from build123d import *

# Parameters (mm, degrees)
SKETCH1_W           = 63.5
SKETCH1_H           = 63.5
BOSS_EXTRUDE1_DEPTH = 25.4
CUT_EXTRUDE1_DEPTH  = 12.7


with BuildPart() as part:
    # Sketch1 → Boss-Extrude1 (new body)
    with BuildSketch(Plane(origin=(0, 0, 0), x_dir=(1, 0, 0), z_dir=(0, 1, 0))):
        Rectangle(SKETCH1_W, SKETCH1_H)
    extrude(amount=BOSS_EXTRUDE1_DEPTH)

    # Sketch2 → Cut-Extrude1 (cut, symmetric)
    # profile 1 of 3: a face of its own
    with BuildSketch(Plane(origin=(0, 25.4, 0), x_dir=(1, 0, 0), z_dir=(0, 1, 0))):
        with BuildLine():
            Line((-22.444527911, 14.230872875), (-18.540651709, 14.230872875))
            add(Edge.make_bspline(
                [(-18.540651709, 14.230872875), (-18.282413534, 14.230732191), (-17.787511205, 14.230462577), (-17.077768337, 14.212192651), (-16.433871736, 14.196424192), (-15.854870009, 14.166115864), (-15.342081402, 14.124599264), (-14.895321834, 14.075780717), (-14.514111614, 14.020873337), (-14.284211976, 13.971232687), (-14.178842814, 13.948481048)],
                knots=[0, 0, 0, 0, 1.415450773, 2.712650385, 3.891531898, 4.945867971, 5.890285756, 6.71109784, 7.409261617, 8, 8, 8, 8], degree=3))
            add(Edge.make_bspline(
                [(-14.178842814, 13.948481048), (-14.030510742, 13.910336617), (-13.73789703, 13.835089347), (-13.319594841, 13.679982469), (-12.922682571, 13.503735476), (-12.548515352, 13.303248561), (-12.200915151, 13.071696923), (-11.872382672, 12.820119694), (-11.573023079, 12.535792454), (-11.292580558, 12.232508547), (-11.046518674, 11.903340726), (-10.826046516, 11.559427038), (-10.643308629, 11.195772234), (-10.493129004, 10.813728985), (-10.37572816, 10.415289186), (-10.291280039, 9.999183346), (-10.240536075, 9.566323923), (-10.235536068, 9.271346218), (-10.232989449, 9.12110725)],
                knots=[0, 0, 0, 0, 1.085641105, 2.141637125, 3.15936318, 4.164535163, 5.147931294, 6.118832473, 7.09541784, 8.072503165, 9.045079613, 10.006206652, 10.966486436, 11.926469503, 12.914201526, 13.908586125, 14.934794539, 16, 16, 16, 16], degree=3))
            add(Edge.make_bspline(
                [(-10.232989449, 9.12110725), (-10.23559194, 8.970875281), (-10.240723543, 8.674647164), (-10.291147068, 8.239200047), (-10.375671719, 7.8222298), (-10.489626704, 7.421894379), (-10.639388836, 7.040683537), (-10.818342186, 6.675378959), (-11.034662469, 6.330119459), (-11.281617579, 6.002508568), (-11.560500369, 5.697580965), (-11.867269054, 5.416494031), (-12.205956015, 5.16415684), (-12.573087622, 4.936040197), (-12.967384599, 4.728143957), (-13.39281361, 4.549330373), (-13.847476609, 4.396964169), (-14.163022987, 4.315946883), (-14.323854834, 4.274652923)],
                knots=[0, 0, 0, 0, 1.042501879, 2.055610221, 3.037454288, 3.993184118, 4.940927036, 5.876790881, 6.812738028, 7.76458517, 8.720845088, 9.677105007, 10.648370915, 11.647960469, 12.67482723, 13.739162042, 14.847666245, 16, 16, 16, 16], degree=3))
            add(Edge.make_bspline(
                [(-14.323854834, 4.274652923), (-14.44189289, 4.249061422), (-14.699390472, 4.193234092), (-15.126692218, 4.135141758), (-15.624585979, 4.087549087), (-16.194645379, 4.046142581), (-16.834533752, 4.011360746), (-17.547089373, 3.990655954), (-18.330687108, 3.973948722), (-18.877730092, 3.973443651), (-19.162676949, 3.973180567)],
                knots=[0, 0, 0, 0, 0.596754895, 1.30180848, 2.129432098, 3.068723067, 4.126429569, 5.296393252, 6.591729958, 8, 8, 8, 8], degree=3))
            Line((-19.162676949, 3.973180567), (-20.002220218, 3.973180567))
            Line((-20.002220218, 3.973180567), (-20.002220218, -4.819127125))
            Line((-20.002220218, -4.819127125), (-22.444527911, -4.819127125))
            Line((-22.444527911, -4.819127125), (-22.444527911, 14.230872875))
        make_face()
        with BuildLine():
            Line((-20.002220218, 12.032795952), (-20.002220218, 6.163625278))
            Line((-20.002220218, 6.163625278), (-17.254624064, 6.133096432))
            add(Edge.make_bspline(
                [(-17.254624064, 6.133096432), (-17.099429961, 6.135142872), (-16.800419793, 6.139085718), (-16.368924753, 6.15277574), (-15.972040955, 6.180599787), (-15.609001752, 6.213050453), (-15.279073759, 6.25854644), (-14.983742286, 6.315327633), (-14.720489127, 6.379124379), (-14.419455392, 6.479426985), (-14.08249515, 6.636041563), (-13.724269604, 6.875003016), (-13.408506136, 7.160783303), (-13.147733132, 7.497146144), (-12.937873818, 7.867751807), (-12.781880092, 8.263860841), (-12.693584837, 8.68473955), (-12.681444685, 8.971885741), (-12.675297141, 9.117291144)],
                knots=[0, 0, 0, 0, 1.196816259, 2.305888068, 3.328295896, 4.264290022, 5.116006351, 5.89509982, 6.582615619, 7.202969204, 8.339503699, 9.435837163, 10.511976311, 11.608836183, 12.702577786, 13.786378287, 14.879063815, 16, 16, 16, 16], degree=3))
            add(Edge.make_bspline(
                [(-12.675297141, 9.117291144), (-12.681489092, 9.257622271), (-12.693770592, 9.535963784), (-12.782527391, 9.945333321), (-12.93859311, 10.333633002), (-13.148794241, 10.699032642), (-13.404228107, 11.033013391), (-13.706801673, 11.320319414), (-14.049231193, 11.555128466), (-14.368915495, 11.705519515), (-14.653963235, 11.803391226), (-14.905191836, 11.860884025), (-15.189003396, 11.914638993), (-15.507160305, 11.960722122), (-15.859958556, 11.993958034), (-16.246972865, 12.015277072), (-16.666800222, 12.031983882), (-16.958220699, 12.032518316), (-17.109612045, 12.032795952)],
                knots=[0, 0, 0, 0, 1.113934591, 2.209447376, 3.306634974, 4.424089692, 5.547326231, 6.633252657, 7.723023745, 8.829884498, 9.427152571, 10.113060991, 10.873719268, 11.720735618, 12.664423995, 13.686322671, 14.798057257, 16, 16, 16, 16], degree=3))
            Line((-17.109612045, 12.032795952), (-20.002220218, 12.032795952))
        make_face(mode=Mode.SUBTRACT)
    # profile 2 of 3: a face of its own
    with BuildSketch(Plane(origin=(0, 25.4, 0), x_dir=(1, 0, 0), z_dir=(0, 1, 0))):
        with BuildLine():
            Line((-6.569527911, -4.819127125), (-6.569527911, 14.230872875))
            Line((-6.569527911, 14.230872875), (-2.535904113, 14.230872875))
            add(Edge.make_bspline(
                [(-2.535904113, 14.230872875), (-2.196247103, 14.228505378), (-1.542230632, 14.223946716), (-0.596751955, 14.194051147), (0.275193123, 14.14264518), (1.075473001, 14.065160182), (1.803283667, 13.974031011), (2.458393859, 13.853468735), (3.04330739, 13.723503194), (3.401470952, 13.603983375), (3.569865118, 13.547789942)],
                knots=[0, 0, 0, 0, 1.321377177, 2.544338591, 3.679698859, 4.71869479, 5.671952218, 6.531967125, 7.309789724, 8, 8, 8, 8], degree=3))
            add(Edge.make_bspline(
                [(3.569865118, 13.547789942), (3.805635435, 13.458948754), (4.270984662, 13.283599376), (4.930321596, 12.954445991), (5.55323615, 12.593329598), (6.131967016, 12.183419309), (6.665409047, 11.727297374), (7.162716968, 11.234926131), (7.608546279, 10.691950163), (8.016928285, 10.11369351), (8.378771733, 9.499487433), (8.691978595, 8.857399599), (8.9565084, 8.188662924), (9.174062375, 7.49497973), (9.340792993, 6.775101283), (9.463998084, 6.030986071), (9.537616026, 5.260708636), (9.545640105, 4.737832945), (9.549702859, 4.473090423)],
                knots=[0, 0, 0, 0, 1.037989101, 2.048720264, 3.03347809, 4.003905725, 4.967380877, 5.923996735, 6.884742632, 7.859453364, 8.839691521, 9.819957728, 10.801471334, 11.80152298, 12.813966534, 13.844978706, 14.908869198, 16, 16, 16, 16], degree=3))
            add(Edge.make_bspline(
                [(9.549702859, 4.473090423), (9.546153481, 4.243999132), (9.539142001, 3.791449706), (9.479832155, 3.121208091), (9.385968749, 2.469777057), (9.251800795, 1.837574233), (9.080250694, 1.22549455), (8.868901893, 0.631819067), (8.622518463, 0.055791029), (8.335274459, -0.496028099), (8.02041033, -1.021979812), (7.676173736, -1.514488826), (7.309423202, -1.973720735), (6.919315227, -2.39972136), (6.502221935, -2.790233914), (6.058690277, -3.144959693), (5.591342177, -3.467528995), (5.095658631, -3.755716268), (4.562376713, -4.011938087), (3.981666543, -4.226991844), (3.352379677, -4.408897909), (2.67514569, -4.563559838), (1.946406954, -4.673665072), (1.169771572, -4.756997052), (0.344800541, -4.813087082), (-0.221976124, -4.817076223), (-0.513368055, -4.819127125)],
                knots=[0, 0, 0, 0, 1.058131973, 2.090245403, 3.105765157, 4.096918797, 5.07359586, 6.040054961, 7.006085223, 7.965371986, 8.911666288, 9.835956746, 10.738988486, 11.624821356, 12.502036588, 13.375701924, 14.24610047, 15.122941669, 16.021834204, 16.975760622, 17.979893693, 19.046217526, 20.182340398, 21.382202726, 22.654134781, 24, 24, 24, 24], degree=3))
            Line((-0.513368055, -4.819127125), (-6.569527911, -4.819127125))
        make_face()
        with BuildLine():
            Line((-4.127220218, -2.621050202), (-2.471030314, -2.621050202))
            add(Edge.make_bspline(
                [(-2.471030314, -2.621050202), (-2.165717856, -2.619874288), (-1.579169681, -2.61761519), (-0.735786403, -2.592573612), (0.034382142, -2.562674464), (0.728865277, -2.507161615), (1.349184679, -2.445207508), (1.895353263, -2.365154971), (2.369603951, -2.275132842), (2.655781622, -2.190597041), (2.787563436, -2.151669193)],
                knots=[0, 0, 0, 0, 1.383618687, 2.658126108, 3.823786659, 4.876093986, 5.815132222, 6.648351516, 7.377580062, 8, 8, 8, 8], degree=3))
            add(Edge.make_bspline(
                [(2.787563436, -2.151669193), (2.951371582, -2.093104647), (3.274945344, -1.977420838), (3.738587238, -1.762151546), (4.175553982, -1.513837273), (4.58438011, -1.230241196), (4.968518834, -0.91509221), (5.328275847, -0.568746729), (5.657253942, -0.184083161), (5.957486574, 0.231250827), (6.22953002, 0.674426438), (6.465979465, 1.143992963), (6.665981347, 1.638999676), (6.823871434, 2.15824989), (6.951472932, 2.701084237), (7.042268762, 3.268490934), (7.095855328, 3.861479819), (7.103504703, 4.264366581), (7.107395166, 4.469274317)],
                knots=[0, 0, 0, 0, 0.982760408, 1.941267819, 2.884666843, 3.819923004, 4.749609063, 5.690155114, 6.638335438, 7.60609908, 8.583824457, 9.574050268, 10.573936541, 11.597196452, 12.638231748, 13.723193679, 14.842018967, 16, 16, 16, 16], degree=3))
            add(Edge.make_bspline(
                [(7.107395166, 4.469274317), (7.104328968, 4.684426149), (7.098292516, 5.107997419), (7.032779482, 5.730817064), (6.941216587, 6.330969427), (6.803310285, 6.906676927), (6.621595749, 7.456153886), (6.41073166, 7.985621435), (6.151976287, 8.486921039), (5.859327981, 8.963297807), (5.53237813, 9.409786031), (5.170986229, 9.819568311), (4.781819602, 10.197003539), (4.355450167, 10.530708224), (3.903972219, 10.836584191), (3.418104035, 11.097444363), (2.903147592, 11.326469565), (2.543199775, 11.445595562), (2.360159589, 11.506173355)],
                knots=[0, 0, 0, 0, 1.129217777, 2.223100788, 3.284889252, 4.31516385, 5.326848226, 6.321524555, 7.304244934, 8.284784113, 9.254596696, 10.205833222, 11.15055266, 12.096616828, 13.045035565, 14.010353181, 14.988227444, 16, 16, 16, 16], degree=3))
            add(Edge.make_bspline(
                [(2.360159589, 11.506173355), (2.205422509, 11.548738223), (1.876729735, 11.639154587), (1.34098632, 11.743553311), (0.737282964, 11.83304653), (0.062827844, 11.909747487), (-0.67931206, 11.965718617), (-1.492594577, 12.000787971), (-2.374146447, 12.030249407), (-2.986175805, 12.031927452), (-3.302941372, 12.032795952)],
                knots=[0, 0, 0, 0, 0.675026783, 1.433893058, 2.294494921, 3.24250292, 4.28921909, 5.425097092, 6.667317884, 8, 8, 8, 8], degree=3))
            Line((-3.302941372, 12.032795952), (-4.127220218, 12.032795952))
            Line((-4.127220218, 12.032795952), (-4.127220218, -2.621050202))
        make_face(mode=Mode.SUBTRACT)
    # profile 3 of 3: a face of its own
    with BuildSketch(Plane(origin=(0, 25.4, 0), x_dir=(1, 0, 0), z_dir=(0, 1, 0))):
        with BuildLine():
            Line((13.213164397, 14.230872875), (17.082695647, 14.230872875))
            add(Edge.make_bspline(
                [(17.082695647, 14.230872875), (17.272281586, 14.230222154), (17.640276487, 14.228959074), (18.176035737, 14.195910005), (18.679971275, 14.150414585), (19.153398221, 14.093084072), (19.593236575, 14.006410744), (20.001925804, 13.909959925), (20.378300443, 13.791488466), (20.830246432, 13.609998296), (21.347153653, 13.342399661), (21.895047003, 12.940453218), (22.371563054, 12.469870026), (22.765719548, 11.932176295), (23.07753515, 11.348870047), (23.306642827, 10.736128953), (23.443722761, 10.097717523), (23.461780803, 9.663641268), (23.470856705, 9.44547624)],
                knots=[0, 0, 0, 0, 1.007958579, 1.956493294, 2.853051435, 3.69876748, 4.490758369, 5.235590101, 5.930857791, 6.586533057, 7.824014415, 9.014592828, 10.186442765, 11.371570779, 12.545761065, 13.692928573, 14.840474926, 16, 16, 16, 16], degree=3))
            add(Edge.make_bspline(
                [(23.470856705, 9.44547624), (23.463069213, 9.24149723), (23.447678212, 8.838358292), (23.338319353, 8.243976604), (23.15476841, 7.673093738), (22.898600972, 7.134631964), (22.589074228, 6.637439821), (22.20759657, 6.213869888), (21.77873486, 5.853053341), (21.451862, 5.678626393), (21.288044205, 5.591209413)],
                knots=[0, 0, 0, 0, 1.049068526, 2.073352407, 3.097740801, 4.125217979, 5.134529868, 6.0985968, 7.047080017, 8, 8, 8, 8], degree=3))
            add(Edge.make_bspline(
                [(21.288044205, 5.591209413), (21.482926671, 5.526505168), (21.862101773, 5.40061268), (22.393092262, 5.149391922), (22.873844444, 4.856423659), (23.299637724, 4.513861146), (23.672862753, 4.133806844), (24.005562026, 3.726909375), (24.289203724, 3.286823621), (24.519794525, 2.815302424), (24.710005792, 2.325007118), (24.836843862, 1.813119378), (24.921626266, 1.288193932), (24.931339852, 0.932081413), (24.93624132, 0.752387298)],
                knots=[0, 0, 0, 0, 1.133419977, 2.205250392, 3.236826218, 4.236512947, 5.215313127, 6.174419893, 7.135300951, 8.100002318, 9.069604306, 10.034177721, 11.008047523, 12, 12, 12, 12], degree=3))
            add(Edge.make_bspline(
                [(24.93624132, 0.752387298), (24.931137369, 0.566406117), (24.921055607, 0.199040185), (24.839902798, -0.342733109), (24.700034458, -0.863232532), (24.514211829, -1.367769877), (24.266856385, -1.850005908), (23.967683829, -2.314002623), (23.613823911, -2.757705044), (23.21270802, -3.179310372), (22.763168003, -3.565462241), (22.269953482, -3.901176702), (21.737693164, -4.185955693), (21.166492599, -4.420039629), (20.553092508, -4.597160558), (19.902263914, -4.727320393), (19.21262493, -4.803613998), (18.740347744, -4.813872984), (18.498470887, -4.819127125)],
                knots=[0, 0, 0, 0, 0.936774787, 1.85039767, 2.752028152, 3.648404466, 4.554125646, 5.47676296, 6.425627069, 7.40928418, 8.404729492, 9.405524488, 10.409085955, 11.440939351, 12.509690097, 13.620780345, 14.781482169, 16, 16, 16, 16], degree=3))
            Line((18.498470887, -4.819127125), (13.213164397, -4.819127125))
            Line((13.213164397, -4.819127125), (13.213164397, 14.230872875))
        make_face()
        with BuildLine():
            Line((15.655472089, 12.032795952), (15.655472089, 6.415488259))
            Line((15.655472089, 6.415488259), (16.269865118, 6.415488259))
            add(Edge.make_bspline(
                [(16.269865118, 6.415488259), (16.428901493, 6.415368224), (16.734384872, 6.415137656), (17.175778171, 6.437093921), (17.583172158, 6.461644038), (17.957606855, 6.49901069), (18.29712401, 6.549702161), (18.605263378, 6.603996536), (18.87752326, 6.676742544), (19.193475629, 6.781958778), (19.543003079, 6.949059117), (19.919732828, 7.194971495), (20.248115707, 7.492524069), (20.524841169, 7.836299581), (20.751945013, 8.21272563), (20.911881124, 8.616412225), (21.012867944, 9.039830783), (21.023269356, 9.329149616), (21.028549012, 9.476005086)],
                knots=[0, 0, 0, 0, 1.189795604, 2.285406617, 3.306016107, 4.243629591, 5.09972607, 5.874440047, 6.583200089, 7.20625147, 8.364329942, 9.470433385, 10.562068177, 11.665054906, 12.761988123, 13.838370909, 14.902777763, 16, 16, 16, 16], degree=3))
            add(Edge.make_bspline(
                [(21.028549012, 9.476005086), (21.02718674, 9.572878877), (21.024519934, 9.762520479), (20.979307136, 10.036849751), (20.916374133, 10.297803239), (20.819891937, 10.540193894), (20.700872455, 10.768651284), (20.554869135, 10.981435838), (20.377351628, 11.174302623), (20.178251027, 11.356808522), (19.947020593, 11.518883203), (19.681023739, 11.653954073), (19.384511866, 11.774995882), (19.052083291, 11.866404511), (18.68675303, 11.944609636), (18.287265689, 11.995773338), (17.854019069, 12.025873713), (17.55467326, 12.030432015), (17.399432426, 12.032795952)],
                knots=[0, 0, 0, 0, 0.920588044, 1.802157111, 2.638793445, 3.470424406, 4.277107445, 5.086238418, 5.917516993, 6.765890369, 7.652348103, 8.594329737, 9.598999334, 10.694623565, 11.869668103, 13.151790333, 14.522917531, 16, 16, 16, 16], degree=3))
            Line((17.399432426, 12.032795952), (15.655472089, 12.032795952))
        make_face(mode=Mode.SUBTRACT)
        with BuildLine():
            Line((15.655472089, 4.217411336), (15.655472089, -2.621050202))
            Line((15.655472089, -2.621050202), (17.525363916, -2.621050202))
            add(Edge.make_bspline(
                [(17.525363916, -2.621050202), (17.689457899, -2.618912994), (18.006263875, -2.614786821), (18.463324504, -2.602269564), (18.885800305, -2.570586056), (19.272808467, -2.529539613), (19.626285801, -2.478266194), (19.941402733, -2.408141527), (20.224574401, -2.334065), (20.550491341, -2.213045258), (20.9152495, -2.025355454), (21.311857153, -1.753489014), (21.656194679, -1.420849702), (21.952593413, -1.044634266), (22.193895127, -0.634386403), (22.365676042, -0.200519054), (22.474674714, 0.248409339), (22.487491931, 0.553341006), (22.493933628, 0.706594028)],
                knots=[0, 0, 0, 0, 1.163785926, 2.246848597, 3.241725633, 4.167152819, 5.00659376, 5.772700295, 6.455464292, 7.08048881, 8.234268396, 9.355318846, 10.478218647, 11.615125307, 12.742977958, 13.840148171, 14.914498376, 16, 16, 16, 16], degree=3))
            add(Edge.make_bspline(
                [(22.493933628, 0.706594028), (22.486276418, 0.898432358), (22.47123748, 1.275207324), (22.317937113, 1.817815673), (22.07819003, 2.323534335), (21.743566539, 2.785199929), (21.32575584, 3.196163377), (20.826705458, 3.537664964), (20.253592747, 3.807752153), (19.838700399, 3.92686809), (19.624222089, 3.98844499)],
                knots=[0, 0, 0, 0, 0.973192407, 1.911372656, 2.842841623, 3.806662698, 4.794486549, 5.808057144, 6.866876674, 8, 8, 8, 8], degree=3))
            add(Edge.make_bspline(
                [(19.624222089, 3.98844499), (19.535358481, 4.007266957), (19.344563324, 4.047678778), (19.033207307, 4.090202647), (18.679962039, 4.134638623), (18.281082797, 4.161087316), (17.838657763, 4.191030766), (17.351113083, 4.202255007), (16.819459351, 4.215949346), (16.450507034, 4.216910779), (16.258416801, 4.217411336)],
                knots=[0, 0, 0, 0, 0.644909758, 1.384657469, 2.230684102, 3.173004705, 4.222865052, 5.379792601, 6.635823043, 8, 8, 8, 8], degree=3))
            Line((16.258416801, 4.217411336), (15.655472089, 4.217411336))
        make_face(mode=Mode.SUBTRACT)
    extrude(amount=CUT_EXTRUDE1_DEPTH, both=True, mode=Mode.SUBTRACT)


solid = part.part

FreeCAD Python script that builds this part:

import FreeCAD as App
import Part
import Sketcher
from FreeCAD import Vector
Q = App.Units.Quantity

doc = App.newDocument("Part")
body = doc.addObject("PartDesign::Body", "Body")

# Sketch on XZ plane
sketch1 = body.newObject("Sketcher::SketchObject", "Sketch")
sketch1.AttachmentSupport = (doc.getObject("XZ_Plane"), [""])
sketch1.MapMode = "FlatFace"
sketch1.addGeometry([
    Part.LineSegment(Vector(-31.75, -31.75, 0), Vector(-31.75, 31.75, 0)),
    Part.LineSegment(Vector(-31.75, 31.75, 0), Vector(31.75, 31.75, 0)),
    Part.LineSegment(Vector(31.75, 31.75, 0), Vector(31.75, -31.75, 0)),
    Part.LineSegment(Vector(31.75, -31.75, 0), Vector(-31.75, -31.75, 0)),
], False)
sketch1.addConstraint([
    Sketcher.Constraint("Coincident", 0, 2, 1, 1),
    Sketcher.Constraint("Coincident", 1, 2, 2, 1),
    Sketcher.Constraint("Coincident", 2, 2, 3, 1),
    Sketcher.Constraint("Coincident", 3, 2, 0, 1),
    Sketcher.Constraint("Vertical", 0),
    Sketcher.Constraint("Horizontal", 1),
    Sketcher.Constraint("Vertical", 2),
    Sketcher.Constraint("Horizontal", 3),
    Sketcher.Constraint("Symmetric", 0, 2, 2, 2, -1, 1),
    Sketcher.Constraint("Equal", 3, 0),
    Sketcher.Constraint("DistanceX", 1, 1, 1, 2, Q("2.5 in")),
])
pad1 = body.newObject("PartDesign::Pad", "Pad")
pad1.Profile = sketch1
pad1.Length = Q("1 in")
pad1.Reversed = True

# Sketch on XZ plane
sketch2 = body.newObject("Sketcher::SketchObject", "Sketch001")
sketch2.AttachmentSupport = (doc.getObject("XZ_Plane"), [""])
sketch2.MapMode = "FlatFace"
sketch2.AttachmentOffset = App.Placement(Vector(0, 0, -1 * 25.4), App.Rotation())
sketch2.addGeometry([
    Part.LineSegment(Vector(-18.540652, -14.230873, 0), Vector(-22.444528, -14.230873, 0)),  # 0
    Part.LineSegment(Vector(-22.444528, -14.230873, 0), Vector(-22.444528, 4.819127, 0)),  # 1
    Part.LineSegment(Vector(-22.444528, 4.819127, 0), Vector(-20.00222, 4.819127, 0)),  # 2
    Part.LineSegment(Vector(-20.00222, 4.819127, 0), Vector(-20.00222, -3.973181, 0)),  # 3
    Part.LineSegment(Vector(-20.00222, -3.973181, 0), Vector(-19.162677, -3.973181, 0)),  # 4
    Part.BSplineCurve([Vector(-14.323855, -4.274653, 0), Vector(-14.441893, -4.249061, 0), Vector(-14.69939, -4.193234, 0), Vector(-15.126692, -4.135142, 0), Vector(-15.624586, -4.087549, 0), Vector(-16.194645, -4.046143, 0), Vector(-16.834534, -4.011361, 0), Vector(-17.547089, -3.990656, 0), Vector(-18.330687, -3.973949, 0), Vector(-18.87773, -3.973444, 0), Vector(-19.162677, -3.973181, 0)], [4, 1, 1, 1, 1, 1, 1, 1, 4], [0, 0.596754895, 1.30180848, 2.129432098, 3.068723067, 4.126429569, 5.296393252, 6.591729958, 8], False, 3, [1, 1, 1, 1, 1, 1, 1, 1, 1, 1, 1], False),  # 5
    Part.BSplineCurve([Vector(-10.232989, -9.121107, 0), Vector(-10.235592, -8.970875, 0), Vector(-10.240724, -8.674647, 0), Vector(-10.291147, -8.2392, 0), Vector(-10.375672, -7.82223, 0), Vector(-10.489627, -7.421894, 0), Vector(-10.639389, -7.040684, 0), Vector(-10.818342, -6.675379, 0), Vector(-11.034662, -6.330119, 0), Vector(-11.281618, -6.002509, 0), Vector(-11.5605, -5.697581, 0), Vector(-11.867269, -5.416494, 0), Vector(-12.205956, -5.164157, 0), Vector(-12.573088, -4.93604, 0), Vector(-12.967385, -4.728144, 0), Vector(-13.392814, -4.54933, 0), Vector(-13.847477, -4.396964, 0), Vector(-14.163023, -4.315947, 0), Vector(-14.323855, -4.274653, 0)], [4, 1, 1, 1, 1, 1, 1, 1, 1, 1, 1, 1, 1, 1, 1, 1, 4], [0, 1.042501879, 2.055610221, 3.037454288, 3.993184118, 4.940927036, 5.876790881, 6.812738028, 7.76458517, 8.720845088, 9.677105007, 10.648370915, 11.647960469, 12.67482723, 13.739162042, 14.847666245, 16], False, 3, [1, 1, 1, 1, 1, 1, 1, 1, 1, 1, 1, 1, 1, 1, 1, 1, 1, 1, 1], False),  # 6
    Part.BSplineCurve([Vector(-14.178843, -13.948481, 0), Vector(-14.030511, -13.910337, 0), Vector(-13.737897, -13.835089, 0), Vector(-13.319595, -13.679982, 0), Vector(-12.922683, -13.503735, 0), Vector(-12.548515, -13.303249, 0), Vector(-12.200915, -13.071697, 0), Vector(-11.872383, -12.82012, 0), Vector(-11.573023, -12.535792, 0), Vector(-11.292581, -12.232509, 0), Vector(-11.046519, -11.903341, 0), Vector(-10.826047, -11.559427, 0), Vector(-10.643309, -11.195772, 0), Vector(-10.493129, -10.813729, 0), Vector(-10.375728, -10.415289, 0), Vector(-10.29128, -9.999183, 0), Vector(-10.240536, -9.566324, 0), Vector(-10.235536, -9.271346, 0), Vector(-10.232989, -9.121107, 0)], [4, 1, 1, 1, 1, 1, 1, 1, 1, 1, 1, 1, 1, 1, 1, 1, 4], [0, 1.085641105, 2.141637125, 3.15936318, 4.164535163, 5.147931294, 6.118832473, 7.09541784, 8.072503165, 9.045079613, 10.006206652, 10.966486436, 11.926469503, 12.914201526, 13.908586125, 14.934794539, 16], False, 3, [1, 1, 1, 1, 1, 1, 1, 1, 1, 1, 1, 1, 1, 1, 1, 1, 1, 1, 1], False),  # 7
    Part.BSplineCurve([Vector(-18.540652, -14.230873, 0), Vector(-18.282414, -14.230732, 0), Vector(-17.787511, -14.230463, 0), Vector(-17.077768, -14.212193, 0), Vector(-16.433872, -14.196424, 0), Vector(-15.85487, -14.166116, 0), Vector(-15.342081, -14.124599, 0), Vector(-14.895322, -14.075781, 0), Vector(-14.514112, -14.020873, 0), Vector(-14.284212, -13.971233, 0), Vector(-14.178843, -13.948481, 0)], [4, 1, 1, 1, 1, 1, 1, 1, 4], [0, 1.415450773, 2.712650385, 3.891531898, 4.945867971, 5.890285756, 6.71109784, 7.409261617, 8], False, 3, [1, 1, 1, 1, 1, 1, 1, 1, 1, 1, 1], False),  # 8
    Part.LineSegment(Vector(-20.00222, -12.032796, 0), Vector(-17.109612, -12.032796, 0)),  # 9
    Part.BSplineCurve([Vector(-12.675297, -9.117291, 0), Vector(-12.681489, -9.257622, 0), Vector(-12.693771, -9.535964, 0), Vector(-12.782527, -9.945333, 0), Vector(-12.938593, -10.333633, 0), Vector(-13.148794, -10.699033, 0), Vector(-13.404228, -11.033013, 0), Vector(-13.706802, -11.320319, 0), Vector(-14.049231, -11.555128, 0), Vector(-14.368915, -11.70552, 0), Vector(-14.653963, -11.803391, 0), Vector(-14.905192, -11.860884, 0), Vector(-15.189003, -11.914639, 0), Vector(-15.50716, -11.960722, 0), Vector(-15.859959, -11.993958, 0), Vector(-16.246973, -12.015277, 0), Vector(-16.6668, -12.031984, 0), Vector(-16.958221, -12.032518, 0), Vector(-17.109612, -12.032796, 0)], [4, 1, 1, 1, 1, 1, 1, 1, 1, 1, 1, 1, 1, 1, 1, 1, 4], [0, 1.113934591, 2.209447376, 3.306634974, 4.424089692, 5.547326231, 6.633252657, 7.723023745, 8.829884498, 9.427152571, 10.113060991, 10.873719268, 11.720735618, 12.664423995, 13.686322671, 14.798057257, 16], False, 3, [1, 1, 1, 1, 1, 1, 1, 1, 1, 1, 1, 1, 1, 1, 1, 1, 1, 1, 1], False),  # 10
    Part.BSplineCurve([Vector(-17.254624, -6.133096, 0), Vector(-17.09943, -6.135143, 0), Vector(-16.80042, -6.139086, 0), Vector(-16.368925, -6.152776, 0), Vector(-15.972041, -6.1806, 0), Vector(-15.609002, -6.21305, 0), Vector(-15.279074, -6.258546, 0), Vector(-14.983742, -6.315328, 0), Vector(-14.720489, -6.379124, 0), Vector(-14.419455, -6.479427, 0), Vector(-14.082495, -6.636042, 0), Vector(-13.72427, -6.875003, 0), Vector(-13.408506, -7.160783, 0), Vector(-13.147733, -7.497146, 0), Vector(-12.937874, -7.867752, 0), Vector(-12.78188, -8.263861, 0), Vector(-12.693585, -8.68474, 0), Vector(-12.681445, -8.971886, 0), Vector(-12.675297, -9.117291, 0)], [4, 1, 1, 1, 1, 1, 1, 1, 1, 1, 1, 1, 1, 1, 1, 1, 4], [0, 1.196816259, 2.305888068, 3.328295896, 4.264290022, 5.116006351, 5.89509982, 6.582615619, 7.202969204, 8.339503699, 9.435837163, 10.511976311, 11.608836183, 12.702577786, 13.786378287, 14.879063815, 16], False, 3, [1, 1, 1, 1, 1, 1, 1, 1, 1, 1, 1, 1, 1, 1, 1, 1, 1, 1, 1], False),  # 11
    Part.LineSegment(Vector(-17.254624, -6.133096, 0), Vector(-20.00222, -6.163625, 0)),  # 12
    Part.LineSegment(Vector(-20.00222, -6.163625, 0), Vector(-20.00222, -12.032796, 0)),  # 13
    Part.LineSegment(Vector(-6.569528, -14.230873, 0), Vector(-6.569528, 4.819127, 0)),  # 14
    Part.LineSegment(Vector(-6.569528, 4.819127, 0), Vector(-0.513368, 4.819127, 0)),  # 15
    Part.BSplineCurve([Vector(9.549703, -4.47309, 0), Vector(9.546153, -4.243999, 0), Vector(9.539142, -3.79145, 0), Vector(9.479832, -3.121208, 0), Vector(9.385969, -2.469777, 0), Vector(9.251801, -1.837574, 0), Vector(9.080251, -1.225495, 0), Vector(8.868902, -0.631819, 0), Vector(8.622518, -0.055791, 0), Vector(8.335274, 0.496028, 0), Vector(8.02041, 1.02198, 0), Vector(7.676174, 1.514489, 0), Vector(7.309423, 1.973721, 0), Vector(6.919315, 2.399721, 0), Vector(6.502222, 2.790234, 0), Vector(6.05869, 3.14496, 0), Vector(5.591342, 3.467529, 0), Vector(5.095659, 3.755716, 0), Vector(4.562377, 4.011938, 0), Vector(3.981667, 4.226992, 0), Vector(3.35238, 4.408898, 0), Vector(2.675146, 4.56356, 0), Vector(1.946407, 4.673665, 0), Vector(1.169772, 4.756997, 0), Vector(0.344801, 4.813087, 0), Vector(-0.221976, 4.817076, 0), Vector(-0.513368, 4.819127, 0)], [4, 1, 1, 1, 1, 1, 1, 1, 1, 1, 1, 1, 1, 1, 1, 1, 1, 1, 1, 1, 1, 1, 1, 1, 4], [0, 1.058131973, 2.090245403, 3.105765157, 4.096918797, 5.07359586, 6.040054961, 7.006085223, 7.965371986, 8.911666288, 9.835956746, 10.738988486, 11.624821356, 12.502036588, 13.375701924, 14.24610047, 15.122941669, 16.021834204, 16.975760622, 17.979893693, 19.046217526, 20.182340398, 21.382202726, 22.654134781, 24], False, 3, [1, 1, 1, 1, 1, 1, 1, 1, 1, 1, 1, 1, 1, 1, 1, 1, 1, 1, 1, 1, 1, 1, 1, 1, 1, 1, 1], False),  # 16
    Part.BSplineCurve([Vector(3.569865, -13.54779, 0), Vector(3.805635, -13.458949, 0), Vector(4.270985, -13.283599, 0), Vector(4.930322, -12.954446, 0), Vector(5.553236, -12.59333, 0), Vector(6.131967, -12.183419, 0), Vector(6.665409, -11.727297, 0), Vector(7.162717, -11.234926, 0), Vector(7.608546, -10.69195, 0), Vector(8.016928, -10.113694, 0), Vector(8.378772, -9.499487, 0), Vector(8.691979, -8.8574, 0), Vector(8.956508, -8.188663, 0), Vector(9.174062, -7.49498, 0), Vector(9.340793, -6.775101, 0), Vector(9.463998, -6.030986, 0), Vector(9.537616, -5.260709, 0), Vector(9.54564, -4.737833, 0), Vector(9.549703, -4.47309, 0)], [4, 1, 1, 1, 1, 1, 1, 1, 1, 1, 1, 1, 1, 1, 1, 1, 4], [0, 1.037989101, 2.048720264, 3.03347809, 4.003905725, 4.967380877, 5.923996735, 6.884742632, 7.859453364, 8.839691521, 9.819957728, 10.801471334, 11.80152298, 12.813966534, 13.844978706, 14.908869198, 16], False, 3, [1, 1, 1, 1, 1, 1, 1, 1, 1, 1, 1, 1, 1, 1, 1, 1, 1, 1, 1], False),  # 17
    Part.BSplineCurve([Vector(-2.535904, -14.230873, 0), Vector(-2.196247, -14.228505, 0), Vector(-1.542231, -14.223947, 0), Vector(-0.596752, -14.194051, 0), Vector(0.275193, -14.142645, 0), Vector(1.075473, -14.06516, 0), Vector(1.803284, -13.974031, 0), Vector(2.458394, -13.853469, 0), Vector(3.043307, -13.723503, 0), Vector(3.401471, -13.603983, 0), Vector(3.569865, -13.54779, 0)], [4, 1, 1, 1, 1, 1, 1, 1, 4], [0, 1.321377177, 2.544338591, 3.679698859, 4.71869479, 5.671952218, 6.531967125, 7.309789724, 8], False, 3, [1, 1, 1, 1, 1, 1, 1, 1, 1, 1, 1], False),  # 18
    Part.LineSegment(Vector(-2.535904, -14.230873, 0), Vector(-6.569528, -14.230873, 0)),  # 19
    Part.LineSegment(Vector(-4.12722, 2.62105, 0), Vector(-4.12722, -12.032796, 0)),  # 20
    Part.LineSegment(Vector(-4.12722, -12.032796, 0), Vector(-3.302941, -12.032796, 0)),  # 21
    Part.BSplineCurve([Vector(2.36016, -11.506173, 0), Vector(2.205423, -11.548738, 0), Vector(1.87673, -11.639155, 0), Vector(1.340986, -11.743553, 0), Vector(0.737283, -11.833047, 0), Vector(0.062828, -11.909747, 0), Vector(-0.679312, -11.965719, 0), Vector(-1.492595, -12.000788, 0), Vector(-2.374146, -12.030249, 0), Vector(-2.986176, -12.031927, 0), Vector(-3.302941, -12.032796, 0)], [4, 1, 1, 1, 1, 1, 1, 1, 4], [0, 0.675026783, 1.433893058, 2.294494921, 3.24250292, 4.28921909, 5.425097092, 6.667317884, 8], False, 3, [1, 1, 1, 1, 1, 1, 1, 1, 1, 1, 1], False),  # 22
    Part.BSplineCurve([Vector(7.107395, -4.469274, 0), Vector(7.104329, -4.684426, 0), Vector(7.098293, -5.107997, 0), Vector(7.032779, -5.730817, 0), Vector(6.941217, -6.330969, 0), Vector(6.80331, -6.906677, 0), Vector(6.621596, -7.456154, 0), Vector(6.410732, -7.985621, 0), Vector(6.151976, -8.486921, 0), Vector(5.859328, -8.963298, 0), Vector(5.532378, -9.409786, 0), Vector(5.170986, -9.819568, 0), Vector(4.78182, -10.197004, 0), Vector(4.35545, -10.530708, 0), Vector(3.903972, -10.836584, 0), Vector(3.418104, -11.097444, 0), Vector(2.903148, -11.32647, 0), Vector(2.5432, -11.445596, 0), Vector(2.36016, -11.506173, 0)], [4, 1, 1, 1, 1, 1, 1, 1, 1, 1, 1, 1, 1, 1, 1, 1, 4], [0, 1.129217777, 2.223100788, 3.284889252, 4.31516385, 5.326848226, 6.321524555, 7.304244934, 8.284784113, 9.254596696, 10.205833222, 11.15055266, 12.096616828, 13.045035565, 14.010353181, 14.988227444, 16], False, 3, [1, 1, 1, 1, 1, 1, 1, 1, 1, 1, 1, 1, 1, 1, 1, 1, 1, 1, 1], False),  # 23
    Part.BSplineCurve([Vector(2.787563, 2.151669, 0), Vector(2.951372, 2.093105, 0), Vector(3.274945, 1.977421, 0), Vector(3.738587, 1.762152, 0), Vector(4.175554, 1.513837, 0), Vector(4.58438, 1.230241, 0), Vector(4.968519, 0.915092, 0), Vector(5.328276, 0.568747, 0), Vector(5.657254, 0.184083, 0), Vector(5.957487, -0.231251, 0), Vector(6.22953, -0.674426, 0), Vector(6.465979, -1.143993, 0), Vector(6.665981, -1.639, 0), Vector(6.823871, -2.15825, 0), Vector(6.951473, -2.701084, 0), Vector(7.042269, -3.268491, 0), Vector(7.095855, -3.86148, 0), Vector(7.103505, -4.264367, 0), Vector(7.107395, -4.469274, 0)], [4, 1, 1, 1, 1, 1, 1, 1, 1, 1, 1, 1, 1, 1, 1, 1, 4], [0, 0.982760408, 1.941267819, 2.884666843, 3.819923004, 4.749609063, 5.690155114, 6.638335438, 7.60609908, 8.583824457, 9.574050268, 10.573936541, 11.597196452, 12.638231748, 13.723193679, 14.842018967, 16], False, 3, [1, 1, 1, 1, 1, 1, 1, 1, 1, 1, 1, 1, 1, 1, 1, 1, 1, 1, 1], False),  # 24
    Part.BSplineCurve([Vector(-2.47103, 2.62105, 0), Vector(-2.165718, 2.619874, 0), Vector(-1.57917, 2.617615, 0), Vector(-0.735786, 2.592574, 0), Vector(0.034382, 2.562674, 0), Vector(0.728865, 2.507162, 0), Vector(1.349185, 2.445208, 0), Vector(1.895353, 2.365155, 0), Vector(2.369604, 2.275133, 0), Vector(2.655782, 2.190597, 0), Vector(2.787563, 2.151669, 0)], [4, 1, 1, 1, 1, 1, 1, 1, 4], [0, 1.383618687, 2.658126108, 3.823786659, 4.876093986, 5.815132222, 6.648351516, 7.377580062, 8], False, 3, [1, 1, 1, 1, 1, 1, 1, 1, 1, 1, 1], False),  # 25
    Part.LineSegment(Vector(-2.47103, 2.62105, 0), Vector(-4.12722, 2.62105, 0)),  # 26
    Part.LineSegment(Vector(17.082696, -14.230873, 0), Vector(13.213164, -14.230873, 0)),  # 27
    Part.LineSegment(Vector(13.213164, -14.230873, 0), Vector(13.213164, 4.819127, 0)),  # 28
    Part.LineSegment(Vector(13.213164, 4.819127, 0), Vector(18.498471, 4.819127, 0)),  # 29
    Part.BSplineCurve([Vector(24.936241, -0.752387, 0), Vector(24.931137, -0.566406, 0), Vector(24.921056, -0.19904, 0), Vector(24.839903, 0.342733, 0), Vector(24.700034, 0.863233, 0), Vector(24.514212, 1.36777, 0), Vector(24.266856, 1.850006, 0), Vector(23.967684, 2.314003, 0), Vector(23.613824, 2.757705, 0), Vector(23.212708, 3.17931, 0), Vector(22.763168, 3.565462, 0), Vector(22.269953, 3.901177, 0), Vector(21.737693, 4.185956, 0), Vector(21.166493, 4.42004, 0), Vector(20.553093, 4.597161, 0), Vector(19.902264, 4.72732, 0), Vector(19.212625, 4.803614, 0), Vector(18.740348, 4.813873, 0), Vector(18.498471, 4.819127, 0)], [4, 1, 1, 1, 1, 1, 1, 1, 1, 1, 1, 1, 1, 1, 1, 1, 4], [0, 0.936774787, 1.85039767, 2.752028152, 3.648404466, 4.554125646, 5.47676296, 6.425627069, 7.40928418, 8.404729492, 9.405524488, 10.409085955, 11.440939351, 12.509690097, 13.620780345, 14.781482169, 16], False, 3, [1, 1, 1, 1, 1, 1, 1, 1, 1, 1, 1, 1, 1, 1, 1, 1, 1, 1, 1], False),  # 30
    Part.BSplineCurve([Vector(21.288044, -5.591209, 0), Vector(21.482927, -5.526505, 0), Vector(21.862102, -5.400613, 0), Vector(22.393092, -5.149392, 0), Vector(22.873844, -4.856424, 0), Vector(23.299638, -4.513861, 0), Vector(23.672863, -4.133807, 0), Vector(24.005562, -3.726909, 0), Vector(24.289204, -3.286824, 0), Vector(24.519795, -2.815302, 0), Vector(24.710006, -2.325007, 0), Vector(24.836844, -1.813119, 0), Vector(24.921626, -1.288194, 0), Vector(24.93134, -0.932081, 0), Vector(24.936241, -0.752387, 0)], [4, 1, 1, 1, 1, 1, 1, 1, 1, 1, 1, 1, 4], [0, 1.133419977, 2.205250392, 3.236826218, 4.236512947, 5.215313127, 6.174419893, 7.135300951, 8.100002318, 9.069604306, 10.034177721, 11.008047523, 12], False, 3, [1, 1, 1, 1, 1, 1, 1, 1, 1, 1, 1, 1, 1, 1, 1], False),  # 31
    Part.BSplineCurve([Vector(23.470857, -9.445476, 0), Vector(23.463069, -9.241497, 0), Vector(23.447678, -8.838358, 0), Vector(23.338319, -8.243977, 0), Vector(23.154768, -7.673094, 0), Vector(22.898601, -7.134632, 0), Vector(22.589074, -6.63744, 0), Vector(22.207597, -6.21387, 0), Vector(21.778735, -5.853053, 0), Vector(21.451862, -5.678626, 0), Vector(21.288044, -5.591209, 0)], [4, 1, 1, 1, 1, 1, 1, 1, 4], [0, 1.049068526, 2.073352407, 3.097740801, 4.125217979, 5.134529868, 6.0985968, 7.047080017, 8], False, 3, [1, 1, 1, 1, 1, 1, 1, 1, 1, 1, 1], False),  # 32
    Part.BSplineCurve([Vector(17.082696, -14.230873, 0), Vector(17.272282, -14.230222, 0), Vector(17.640276, -14.228959, 0), Vector(18.176036, -14.19591, 0), Vector(18.679971, -14.150415, 0), Vector(19.153398, -14.093084, 0), Vector(19.593237, -14.006411, 0), Vector(20.001926, -13.90996, 0), Vector(20.3783, -13.791488, 0), Vector(20.830246, -13.609998, 0), Vector(21.347154, -13.3424, 0), Vector(21.895047, -12.940453, 0), Vector(22.371563, -12.46987, 0), Vector(22.76572, -11.932176, 0), Vector(23.077535, -11.34887, 0), Vector(23.306643, -10.736129, 0), Vector(23.443723, -10.097718, 0), Vector(23.461781, -9.663641, 0), Vector(23.470857, -9.445476, 0)], [4, 1, 1, 1, 1, 1, 1, 1, 1, 1, 1, 1, 1, 1, 1, 1, 4], [0, 1.007958579, 1.956493294, 2.853051435, 3.69876748, 4.490758369, 5.235590101, 5.930857791, 6.586533057, 7.824014415, 9.014592828, 10.186442765, 11.371570779, 12.545761065, 13.692928573, 14.840474926, 16], False, 3, [1, 1, 1, 1, 1, 1, 1, 1, 1, 1, 1, 1, 1, 1, 1, 1, 1, 1, 1], False),  # 33
    Part.LineSegment(Vector(15.655472, -4.217411, 0), Vector(16.258417, -4.217411, 0)),  # 34
    Part.BSplineCurve([Vector(19.624222, -3.988445, 0), Vector(19.535358, -4.007267, 0), Vector(19.344563, -4.047679, 0), Vector(19.033207, -4.090203, 0), Vector(18.679962, -4.134639, 0), Vector(18.281083, -4.161087, 0), Vector(17.838658, -4.191031, 0), Vector(17.351113, -4.202255, 0), Vector(16.819459, -4.215949, 0), Vector(16.450507, -4.216911, 0), Vector(16.258417, -4.217411, 0)], [4, 1, 1, 1, 1, 1, 1, 1, 4], [0, 0.644909758, 1.384657469, 2.230684102, 3.173004705, 4.222865052, 5.379792601, 6.635823043, 8], False, 3, [1, 1, 1, 1, 1, 1, 1, 1, 1, 1, 1], False),  # 35
    Part.BSplineCurve([Vector(22.493934, -0.706594, 0), Vector(22.486276, -0.898432, 0), Vector(22.471237, -1.275207, 0), Vector(22.317937, -1.817816, 0), Vector(22.07819, -2.323534, 0), Vector(21.743567, -2.7852, 0), Vector(21.325756, -3.196163, 0), Vector(20.826705, -3.537665, 0), Vector(20.253593, -3.807752, 0), Vector(19.8387, -3.926868, 0), Vector(19.624222, -3.988445, 0)], [4, 1, 1, 1, 1, 1, 1, 1, 4], [0, 0.973192407, 1.911372656, 2.842841623, 3.806662698, 4.794486549, 5.808057144, 6.866876674, 8], False, 3, [1, 1, 1, 1, 1, 1, 1, 1, 1, 1, 1], False),  # 36
    Part.BSplineCurve([Vector(17.525364, 2.62105, 0), Vector(17.689458, 2.618913, 0), Vector(18.006264, 2.614787, 0), Vector(18.463325, 2.60227, 0), Vector(18.8858, 2.570586, 0), Vector(19.272808, 2.52954, 0), Vector(19.626286, 2.478266, 0), Vector(19.941403, 2.408142, 0), Vector(20.224574, 2.334065, 0), Vector(20.550491, 2.213045, 0), Vector(20.91525, 2.025355, 0), Vector(21.311857, 1.753489, 0), Vector(21.656195, 1.42085, 0), Vector(21.952593, 1.044634, 0), Vector(22.193895, 0.634386, 0), Vector(22.365676, 0.200519, 0), Vector(22.474675, -0.248409, 0), Vector(22.487492, -0.553341, 0), Vector(22.493934, -0.706594, 0)], [4, 1, 1, 1, 1, 1, 1, 1, 1, 1, 1, 1, 1, 1, 1, 1, 4], [0, 1.163785926, 2.246848597, 3.241725633, 4.167152819, 5.00659376, 5.772700295, 6.455464292, 7.08048881, 8.234268396, 9.355318846, 10.478218647, 11.615125307, 12.742977958, 13.840148171, 14.914498376, 16], False, 3, [1, 1, 1, 1, 1, 1, 1, 1, 1, 1, 1, 1, 1, 1, 1, 1, 1, 1, 1], False),  # 37
    Part.LineSegment(Vector(17.525364, 2.62105, 0), Vector(15.655472, 2.62105, 0)),  # 38
    Part.LineSegment(Vector(15.655472, 2.62105, 0), Vector(15.655472, -4.217411, 0)),  # 39
    Part.LineSegment(Vector(15.655472, -12.032796, 0), Vector(17.399432, -12.032796, 0)),  # 40
    Part.BSplineCurve([Vector(21.028549, -9.476005, 0), Vector(21.027187, -9.572879, 0), Vector(21.02452, -9.76252, 0), Vector(20.979307, -10.03685, 0), Vector(20.916374, -10.297803, 0), Vector(20.819892, -10.540194, 0), Vector(20.700872, -10.768651, 0), Vector(20.554869, -10.981436, 0), Vector(20.377352, -11.174303, 0), Vector(20.178251, -11.356809, 0), Vector(19.947021, -11.518883, 0), Vector(19.681024, -11.653954, 0), Vector(19.384512, -11.774996, 0), Vector(19.052083, -11.866405, 0), Vector(18.686753, -11.94461, 0), Vector(18.287266, -11.995773, 0), Vector(17.854019, -12.025874, 0), Vector(17.554673, -12.030432, 0), Vector(17.399432, -12.032796, 0)], [4, 1, 1, 1, 1, 1, 1, 1, 1, 1, 1, 1, 1, 1, 1, 1, 4], [0, 0.920588044, 1.802157111, 2.638793445, 3.470424406, 4.277107445, 5.086238418, 5.917516993, 6.765890369, 7.652348103, 8.594329737, 9.598999334, 10.694623565, 11.869668103, 13.151790333, 14.522917531, 16], False, 3, [1, 1, 1, 1, 1, 1, 1, 1, 1, 1, 1, 1, 1, 1, 1, 1, 1, 1, 1], False),  # 41
    Part.BSplineCurve([Vector(16.269865, -6.415488, 0), Vector(16.428901, -6.415368, 0), Vector(16.734385, -6.415138, 0), Vector(17.175778, -6.437094, 0), Vector(17.583172, -6.461644, 0), Vector(17.957607, -6.499011, 0), Vector(18.297124, -6.549702, 0), Vector(18.605263, -6.603997, 0), Vector(18.877523, -6.676743, 0), Vector(19.193476, -6.781959, 0), Vector(19.543003, -6.949059, 0), Vector(19.919733, -7.194971, 0), Vector(20.248116, -7.492524, 0), Vector(20.524841, -7.8363, 0), Vector(20.751945, -8.212726, 0), Vector(20.911881, -8.616412, 0), Vector(21.012868, -9.039831, 0), Vector(21.023269, -9.32915, 0), Vector(21.028549, -9.476005, 0)], [4, 1, 1, 1, 1, 1, 1, 1, 1, 1, 1, 1, 1, 1, 1, 1, 4], [0, 1.189795604, 2.285406617, 3.306016107, 4.243629591, 5.09972607, 5.874440047, 6.583200089, 7.20625147, 8.364329942, 9.470433385, 10.562068177, 11.665054906, 12.761988123, 13.838370909, 14.902777763, 16], False, 3, [1, 1, 1, 1, 1, 1, 1, 1, 1, 1, 1, 1, 1, 1, 1, 1, 1, 1, 1], False),  # 42
    Part.LineSegment(Vector(16.269865, -6.415488, 0), Vector(15.655472, -6.415488, 0)),  # 43
    Part.LineSegment(Vector(15.655472, -6.415488, 0), Vector(15.655472, -12.032796, 0)),  # 44
], False)
sketch2.addConstraint([
    Sketcher.Constraint("Block", 5),
    Sketcher.Constraint("Block", 6),
    Sketcher.Constraint("Block", 7),
    Sketcher.Constraint("Block", 8),
    Sketcher.Constraint("Block", 10),
    Sketcher.Constraint("Block", 11),
    Sketcher.Constraint("Block", 16),
    Sketcher.Constraint("Block", 17),
    Sketcher.Constraint("Block", 18),
    Sketcher.Constraint("Block", 22),
    Sketcher.Constraint("Block", 23),
    Sketcher.Constraint("Block", 24),
    Sketcher.Constraint("Block", 25),
    Sketcher.Constraint("Block", 30),
    Sketcher.Constraint("Block", 31),
    Sketcher.Constraint("Block", 32),
    Sketcher.Constraint("Block", 33),
    Sketcher.Constraint("Block", 35),
    Sketcher.Constraint("Block", 36),
    Sketcher.Constraint("Block", 37),
    Sketcher.Constraint("Block", 41),
    Sketcher.Constraint("Block", 42),
    Sketcher.Constraint("Coincident", 0, 2, 1, 1),
    Sketcher.Constraint("Coincident", 1, 2, 2, 1),
    Sketcher.Constraint("Coincident", 2, 2, 3, 1),
    Sketcher.Constraint("Coincident", 3, 2, 4, 1),
    Sketcher.Constraint("Coincident", 4, 2, 5, 2),
    Sketcher.Constraint("Coincident", 8, 1, 0, 1),
    Sketcher.Constraint("Coincident", 9, 2, 10, 2),
    Sketcher.Constraint("Coincident", 11, 1, 12, 1),
    Sketcher.Constraint("Coincident", 12, 2, 13, 1),
    Sketcher.Constraint("Coincident", 13, 2, 9, 1),
    Sketcher.Constraint("Coincident", 14, 2, 15, 1),
    Sketcher.Constraint("Coincident", 15, 2, 16, 2),
    Sketcher.Constraint("Coincident", 18, 1, 19, 1),
    Sketcher.Constraint("Coincident", 19, 2, 14, 1),
    Sketcher.Constraint("Coincident", 20, 2, 21, 1),
    Sketcher.Constraint("Coincident", 21, 2, 22, 2),
    Sketcher.Constraint("Coincident", 25, 1, 26, 1),
    Sketcher.Constraint("Coincident", 26, 2, 20, 1),
    Sketcher.Constraint("Coincident", 27, 2, 28, 1),
    Sketcher.Constraint("Coincident", 28, 2, 29, 1),
    Sketcher.Constraint("Coincident", 29, 2, 30, 2),
    Sketcher.Constraint("Coincident", 33, 1, 27, 1),
    Sketcher.Constraint("Coincident", 34, 2, 35, 2),
    Sketcher.Constraint("Coincident", 37, 1, 38, 1),
    Sketcher.Constraint("Coincident", 38, 2, 39, 1),
    Sketcher.Constraint("Coincident", 39, 2, 34, 1),
    Sketcher.Constraint("Coincident", 40, 2, 41, 2),
    Sketcher.Constraint("Coincident", 42, 1, 43, 1),
    Sketcher.Constraint("Coincident", 43, 2, 44, 1),
    Sketcher.Constraint("Coincident", 44, 2, 40, 1),
    Sketcher.Constraint("Horizontal", 0),
    Sketcher.Constraint("Vertical", 1),
    Sketcher.Constraint("Horizontal", 2),
    Sketcher.Constraint("Vertical", 3),
    Sketcher.Constraint("Horizontal", 4),
    Sketcher.Constraint("Horizontal", 9),
    Sketcher.Constraint("Vertical", 13),
    Sketcher.Constraint("Vertical", 14),
    Sketcher.Constraint("Horizontal", 15),
    Sketcher.Constraint("Horizontal", 19),
    Sketcher.Constraint("Vertical", 20),
    Sketcher.Constraint("Horizontal", 21),
    Sketcher.Constraint("Horizontal", 26),
    Sketcher.Constraint("Horizontal", 27),
    Sketcher.Constraint("Vertical", 28),
    Sketcher.Constraint("Horizontal", 29),
    Sketcher.Constraint("Horizontal", 34),
    Sketcher.Constraint("Horizontal", 38),
    Sketcher.Constraint("Vertical", 39),
    Sketcher.Constraint("Horizontal", 40),
    Sketcher.Constraint("Horizontal", 43),
    Sketcher.Constraint("Vertical", 44),
    Sketcher.Constraint("Horizontal", 2, 2, 14, 2),
    Sketcher.Constraint("Vertical", 3, 2, 12, 2),
    Sketcher.Constraint("Vertical", 39, 2, 43, 2),
    Sketcher.Constraint("DistanceX", 1, 2, 14, 2, Q("0.625 in")),
    Sketcher.Constraint("DistanceX", 13, 2, 20, 2, Q("0.625 in")),
    Sketcher.Constraint("DistanceX", 9, 1, 9, 2, 2.892608),
    Sketcher.Constraint("DistanceX", 15, 1, 15, 2, 6.05616),
    Sketcher.Constraint("DistanceX", 27, 2, 27, 1, 3.869531),
    Sketcher.Constraint("DistanceX", 38, 2, 38, 1, 1.869892),
    Sketcher.Constraint("DistanceY", 13, 2, 13, 1, 5.869171),
])
pocket1 = body.newObject("PartDesign::Pocket", "Pocket")
pocket1.Profile = sketch2
pocket1.Length = Q("1 in")
pocket1.Midplane = True

doc.recompute()
